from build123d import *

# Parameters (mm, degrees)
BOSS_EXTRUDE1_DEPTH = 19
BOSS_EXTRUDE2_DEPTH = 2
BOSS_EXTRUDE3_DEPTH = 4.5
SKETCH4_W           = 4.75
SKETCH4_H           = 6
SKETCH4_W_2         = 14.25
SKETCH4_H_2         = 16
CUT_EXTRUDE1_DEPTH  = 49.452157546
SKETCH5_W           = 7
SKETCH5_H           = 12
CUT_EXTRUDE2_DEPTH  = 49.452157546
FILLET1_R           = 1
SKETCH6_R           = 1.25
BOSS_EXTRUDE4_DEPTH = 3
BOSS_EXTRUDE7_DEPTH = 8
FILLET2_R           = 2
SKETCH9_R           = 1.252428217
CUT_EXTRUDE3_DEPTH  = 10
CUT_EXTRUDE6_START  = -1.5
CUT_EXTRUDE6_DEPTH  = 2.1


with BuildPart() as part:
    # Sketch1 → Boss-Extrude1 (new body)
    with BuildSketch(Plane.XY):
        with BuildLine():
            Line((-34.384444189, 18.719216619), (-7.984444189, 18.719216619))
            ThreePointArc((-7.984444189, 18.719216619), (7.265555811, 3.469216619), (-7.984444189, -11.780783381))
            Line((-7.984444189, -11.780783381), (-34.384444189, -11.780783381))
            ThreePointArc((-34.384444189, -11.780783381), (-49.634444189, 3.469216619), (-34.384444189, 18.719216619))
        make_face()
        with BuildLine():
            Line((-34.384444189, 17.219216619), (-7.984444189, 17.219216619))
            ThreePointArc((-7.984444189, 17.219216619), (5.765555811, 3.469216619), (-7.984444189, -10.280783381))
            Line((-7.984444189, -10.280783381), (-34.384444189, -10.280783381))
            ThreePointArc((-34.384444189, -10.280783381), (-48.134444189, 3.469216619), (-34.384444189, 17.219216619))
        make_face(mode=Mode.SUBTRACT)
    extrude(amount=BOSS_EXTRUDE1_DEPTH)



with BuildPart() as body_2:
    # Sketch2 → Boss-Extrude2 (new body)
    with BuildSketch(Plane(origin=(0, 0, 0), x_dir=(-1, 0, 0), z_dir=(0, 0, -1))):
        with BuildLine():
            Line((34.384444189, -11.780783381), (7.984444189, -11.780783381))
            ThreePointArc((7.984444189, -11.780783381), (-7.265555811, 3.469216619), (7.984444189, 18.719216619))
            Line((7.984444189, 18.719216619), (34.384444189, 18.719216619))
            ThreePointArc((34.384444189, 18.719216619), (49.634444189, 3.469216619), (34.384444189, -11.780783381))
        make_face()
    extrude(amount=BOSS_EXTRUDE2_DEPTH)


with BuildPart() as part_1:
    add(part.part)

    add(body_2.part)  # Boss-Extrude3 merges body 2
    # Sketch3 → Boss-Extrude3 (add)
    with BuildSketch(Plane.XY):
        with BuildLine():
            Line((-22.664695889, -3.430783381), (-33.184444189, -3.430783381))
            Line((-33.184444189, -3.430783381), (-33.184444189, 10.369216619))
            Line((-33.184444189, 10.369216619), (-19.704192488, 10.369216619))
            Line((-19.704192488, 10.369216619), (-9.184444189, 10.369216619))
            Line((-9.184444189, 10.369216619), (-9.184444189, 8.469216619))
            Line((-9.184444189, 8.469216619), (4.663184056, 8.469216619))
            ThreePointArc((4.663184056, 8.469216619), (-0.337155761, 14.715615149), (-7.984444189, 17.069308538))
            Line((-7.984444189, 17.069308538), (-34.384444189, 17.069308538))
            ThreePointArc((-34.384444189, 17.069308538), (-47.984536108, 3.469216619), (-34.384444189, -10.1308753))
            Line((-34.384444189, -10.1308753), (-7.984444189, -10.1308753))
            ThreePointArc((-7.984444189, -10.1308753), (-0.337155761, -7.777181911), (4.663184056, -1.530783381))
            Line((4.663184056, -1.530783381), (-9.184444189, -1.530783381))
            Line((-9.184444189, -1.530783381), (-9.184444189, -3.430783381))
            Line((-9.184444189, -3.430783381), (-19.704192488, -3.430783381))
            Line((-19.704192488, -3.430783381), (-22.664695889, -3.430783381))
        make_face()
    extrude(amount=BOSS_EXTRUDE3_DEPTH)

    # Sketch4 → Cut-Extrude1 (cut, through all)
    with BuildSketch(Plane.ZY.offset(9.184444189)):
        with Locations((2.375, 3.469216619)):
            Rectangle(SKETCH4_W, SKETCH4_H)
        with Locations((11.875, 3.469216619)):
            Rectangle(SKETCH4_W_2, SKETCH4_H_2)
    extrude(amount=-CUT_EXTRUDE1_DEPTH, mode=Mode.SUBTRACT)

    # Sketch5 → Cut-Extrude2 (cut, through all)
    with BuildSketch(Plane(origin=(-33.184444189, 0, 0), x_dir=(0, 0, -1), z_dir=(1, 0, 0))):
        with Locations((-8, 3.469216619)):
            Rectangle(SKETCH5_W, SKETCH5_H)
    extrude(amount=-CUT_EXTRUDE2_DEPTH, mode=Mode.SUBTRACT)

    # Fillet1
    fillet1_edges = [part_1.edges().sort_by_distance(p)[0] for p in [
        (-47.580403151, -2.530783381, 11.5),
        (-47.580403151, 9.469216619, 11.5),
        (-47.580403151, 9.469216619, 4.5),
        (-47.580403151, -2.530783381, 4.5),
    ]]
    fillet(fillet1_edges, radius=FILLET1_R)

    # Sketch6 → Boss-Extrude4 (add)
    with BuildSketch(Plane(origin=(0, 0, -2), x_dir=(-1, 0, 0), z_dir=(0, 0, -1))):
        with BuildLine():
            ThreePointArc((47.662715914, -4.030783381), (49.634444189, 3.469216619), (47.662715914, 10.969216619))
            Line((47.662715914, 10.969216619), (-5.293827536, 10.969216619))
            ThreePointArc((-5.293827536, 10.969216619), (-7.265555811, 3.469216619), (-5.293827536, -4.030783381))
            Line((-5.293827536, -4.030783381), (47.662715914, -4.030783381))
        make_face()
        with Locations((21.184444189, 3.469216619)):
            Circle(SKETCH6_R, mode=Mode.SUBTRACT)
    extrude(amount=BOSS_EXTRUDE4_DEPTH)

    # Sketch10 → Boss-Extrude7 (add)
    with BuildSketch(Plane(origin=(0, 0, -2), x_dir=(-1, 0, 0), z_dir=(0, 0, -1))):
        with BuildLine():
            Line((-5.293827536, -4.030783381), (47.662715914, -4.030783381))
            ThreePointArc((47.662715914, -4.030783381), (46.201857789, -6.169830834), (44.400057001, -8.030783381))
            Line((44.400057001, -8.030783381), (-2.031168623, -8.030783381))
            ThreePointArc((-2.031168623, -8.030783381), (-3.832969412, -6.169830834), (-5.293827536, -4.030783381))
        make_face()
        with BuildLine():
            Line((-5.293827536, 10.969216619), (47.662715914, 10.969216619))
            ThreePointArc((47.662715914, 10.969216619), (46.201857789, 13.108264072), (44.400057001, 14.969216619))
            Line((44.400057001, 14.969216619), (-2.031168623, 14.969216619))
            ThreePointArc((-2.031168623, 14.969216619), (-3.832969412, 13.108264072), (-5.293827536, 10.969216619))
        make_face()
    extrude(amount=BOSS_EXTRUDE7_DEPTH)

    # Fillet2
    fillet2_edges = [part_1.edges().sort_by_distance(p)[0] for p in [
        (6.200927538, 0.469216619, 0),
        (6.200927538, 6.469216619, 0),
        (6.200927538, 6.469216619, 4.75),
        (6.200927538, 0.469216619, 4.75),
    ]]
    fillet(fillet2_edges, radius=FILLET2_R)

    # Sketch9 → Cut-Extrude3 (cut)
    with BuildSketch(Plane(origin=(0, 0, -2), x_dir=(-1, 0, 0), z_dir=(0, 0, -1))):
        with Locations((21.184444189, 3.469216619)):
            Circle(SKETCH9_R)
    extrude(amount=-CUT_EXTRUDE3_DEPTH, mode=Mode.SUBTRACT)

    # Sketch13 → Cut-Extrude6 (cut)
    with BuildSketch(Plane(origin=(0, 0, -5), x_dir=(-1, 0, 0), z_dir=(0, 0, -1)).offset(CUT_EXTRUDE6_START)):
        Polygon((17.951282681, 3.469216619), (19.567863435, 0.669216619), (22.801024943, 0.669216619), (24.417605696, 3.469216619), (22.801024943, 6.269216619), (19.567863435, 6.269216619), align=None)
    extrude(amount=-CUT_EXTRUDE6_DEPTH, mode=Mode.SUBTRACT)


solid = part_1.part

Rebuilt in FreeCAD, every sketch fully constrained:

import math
import FreeCAD as App
import Part
import Sketcher
Q = App.Units.Quantity


def edges_at(feature, points):
    """Names of the edges that pass closest to the given points."""
    edges = feature.Shape.Edges
    near = lambda p: min(range(len(edges)), key=lambda i: edges[i].distToShape(Part.Vertex(*p))[0])
    return sorted({f"Edge{near(p) + 1}" for p in points})

doc = App.newDocument("Part")
body = doc.addObject("PartDesign::Body", "Body")

# Sketch on XY plane
sketch1 = body.newObject("Sketcher::SketchObject", "Sketch")
sketch1.AttachmentSupport = (doc.getObject("XY_Plane"), [""])
sketch1.MapMode = "FlatFace"
sketch1.addGeometry([
    Part.LineSegment(App.Vector(-8, 19, 0), App.Vector(-34, 19, 0)),  # 0
    Part.ArcOfCircle(Part.Circle(App.Vector(-34, 3, 0), App.Vector(0, 0, 1), 15), math.radians(90), math.radians(270)),  # 1
    Part.LineSegment(App.Vector(-34, -12, 0), App.Vector(-8, -12, 0)),  # 2
    Part.ArcOfCircle(Part.Circle(App.Vector(-8, 3, 0), App.Vector(0, 0, 1), 15), math.radians(-90), math.radians(90)),  # 3
    Part.LineSegment(App.Vector(-34, 17, 0), App.Vector(-8, 17, 0)),  # 4
    Part.ArcOfCircle(Part.Circle(App.Vector(-8, 3, 0), App.Vector(0, 0, 1), 14), math.radians(-90), math.radians(90)),  # 5
    Part.LineSegment(App.Vector(-8, -10, 0), App.Vector(-34, -10, 0)),  # 6
    Part.ArcOfCircle(Part.Circle(App.Vector(-34, 3, 0), App.Vector(0, 0, 1), 14), math.radians(90), math.radians(270)),  # 7
], False)
sketch1.addConstraint([
    Sketcher.Constraint("Tangent", 0, 2, 1, 1),
    Sketcher.Constraint("Tangent", 1, 2, 2, 1),
    Sketcher.Constraint("Tangent", 2, 2, 3, 1),
    Sketcher.Constraint("Tangent", 3, 2, 0, 1),
    Sketcher.Constraint("Tangent", 4, 2, 5, 2),
    Sketcher.Constraint("Tangent", 5, 1, 6, 1),
    Sketcher.Constraint("Tangent", 6, 2, 7, 2),
    Sketcher.Constraint("Tangent", 7, 1, 4, 1),
    Sketcher.Constraint("Horizontal", 0),
    Sketcher.Constraint("Horizontal", 2),
    Sketcher.Constraint("Horizontal", 4),
    Sketcher.Constraint("Horizontal", 6),
    Sketcher.Constraint("Coincident", 5, 3, 3, 3),
    Sketcher.Constraint("Vertical", 7, 3, 0, 2),
    Sketcher.Constraint("Radius", 1, 15.25),
    Sketcher.Constraint("Radius", 5, 13.75),
    Sketcher.Constraint("DistanceX", 0, 2, 0, 1, 26.4),
    Sketcher.Constraint("DistanceX", 1, 3, -1, 1, 34.384444),
    Sketcher.Constraint("DistanceY", -1, 1, 1, 3, 3.469217),
])
pad1 = body.newObject("PartDesign::Pad", "Pad")
pad1.Profile = sketch1
pad1.Length = 19
body2 = doc.addObject("PartDesign::Body", "Body001")

# Sketch on XY plane
sketch2 = body2.newObject("Sketcher::SketchObject", "Sketch001")
sketch2.AttachmentSupport = (doc.getObject("XY_Plane001"), [""])
sketch2.MapMode = "FlatFace"
sketch2.addGeometry([
    Part.LineSegment(App.Vector(-8, -12, 0), App.Vector(-34, -12, 0)),
    Part.ArcOfCircle(Part.Circle(App.Vector(-34, 3, 0), App.Vector(0, 0, 1), 15), math.radians(90), math.radians(270)),
    Part.LineSegment(App.Vector(-34, 19, 0), App.Vector(-8, 19, 0)),
    Part.ArcOfCircle(Part.Circle(App.Vector(-8, 3, 0), App.Vector(0, 0, 1), 15), math.radians(-90), math.radians(90)),
], False)
sketch2.addConstraint([
    Sketcher.Constraint("Tangent", 0, 2, 1, 2),
    Sketcher.Constraint("Tangent", 1, 1, 2, 1),
    Sketcher.Constraint("Tangent", 2, 2, 3, 2),
    Sketcher.Constraint("Tangent", 3, 1, 0, 1),
    Sketcher.Constraint("Horizontal", 0),
    Sketcher.Constraint("Horizontal", 2),
    Sketcher.Constraint("Radius", 1, 15.25),
    Sketcher.Constraint("DistanceX", 0, 2, 0, 1, 26.4),
    Sketcher.Constraint("DistanceX", 1, 3, -1, 1, 34.384444),
    Sketcher.Constraint("DistanceY", -1, 1, 1, 3, 3.469217),
])
pad2 = body2.newObject("PartDesign::Pad", "Pad001")
pad2.Profile = sketch2
pad2.Length = 2
pad2.Reversed = True
doc.recompute()

boolean = body.newObject("PartDesign::Boolean", "Boolean")
boolean.Type = "Fuse"
boolean.addObjects([body2])

# Sketch on XY plane
sketch3 = body.newObject("Sketcher::SketchObject", "Sketch002")
sketch3.AttachmentSupport = (doc.getObject("XY_Plane"), [""])
sketch3.MapMode = "FlatFace"
sketch3.addGeometry([
    Part.LineSegment(App.Vector(-33.2, -3.4, 0), App.Vector(-33.2, 10.4, 0)),  # 0
    Part.LineSegment(App.Vector(-33.2, 10.4, 0), App.Vector(-9.2, 10.4, 0)),  # 1
    Part.LineSegment(App.Vector(-9.2, 10.4, 0), App.Vector(-9.2, 8.5, 0)),  # 2
    Part.LineSegment(App.Vector(-9.2, 8.5, 0), App.Vector(4.7, 8.5, 0)),  # 3
    Part.ArcOfCircle(Part.Circle(App.Vector(-8, 3.5, 0), App.Vector(0, 0, 1), 13.6), math.radians(22), math.radians(90)),  # 4
    Part.LineSegment(App.Vector(-8, 17.1, 0), App.Vector(-34.4, 17.1, 0)),  # 5
    Part.ArcOfCircle(Part.Circle(App.Vector(-34.4, 3.5, 0), App.Vector(0, 0, 1), 13.6), math.radians(90), math.radians(270)),  # 6
    Part.LineSegment(App.Vector(-34.4, -10.1, 0), App.Vector(-8, -10.1, 0)),  # 7
    Part.ArcOfCircle(Part.Circle(App.Vector(-8, 3.5, 0), App.Vector(0, 0, 1), 13.6), math.radians(-90), math.radians(-22)),  # 8
    Part.LineSegment(App.Vector(4.7, -1.5, 0), App.Vector(-9.2, -1.5, 0)),  # 9
    Part.LineSegment(App.Vector(-9.2, -1.5, 0), App.Vector(-9.2, -3.4, 0)),  # 10
    Part.LineSegment(App.Vector(-9.2, -3.4, 0), App.Vector(-33.2, -3.4, 0)),  # 11
], False)
sketch3.addConstraint([
    Sketcher.Constraint("Coincident", 0, 2, 1, 1),
    Sketcher.Constraint("Coincident", 1, 2, 2, 1),
    Sketcher.Constraint("Coincident", 2, 2, 3, 1),
    Sketcher.Constraint("Coincident", 3, 2, 4, 1),
    Sketcher.Constraint("Tangent", 4, 2, 5, 1),
    Sketcher.Constraint("Tangent", 5, 2, 6, 1),
    Sketcher.Constraint("Tangent", 6, 2, 7, 1),
    Sketcher.Constraint("Tangent", 7, 2, 8, 1),
    Sketcher.Constraint("Coincident", 8, 2, 9, 1),
    Sketcher.Constraint("Coincident", 9, 2, 10, 1),
    Sketcher.Constraint("Coincident", 10, 2, 11, 1),
    Sketcher.Constraint("Coincident", 11, 2, 0, 1),
    Sketcher.Constraint("Vertical", 0),
    Sketcher.Constraint("Horizontal", 1),
    Sketcher.Constraint("Vertical", 2),
    Sketcher.Constraint("Horizontal", 3),
    Sketcher.Constraint("Horizontal", 5),
    Sketcher.Constraint("Horizontal", 7),
    Sketcher.Constraint("Horizontal", 9),
    Sketcher.Constraint("Vertical", 10),
    Sketcher.Constraint("Horizontal", 11),
    Sketcher.Constraint("Coincident", 8, 3, 4, 3),
    Sketcher.Constraint("Equal", 4, 6),
    Sketcher.Constraint("Vertical", 3, 2, 8, 2),
    Sketcher.Constraint("Vertical", 2, 2, 9, 2),
    Sketcher.Constraint("Equal", 2, 10),
    Sketcher.Constraint("DistanceX", 1, 1, 1, 2, 24.0),
    Sketcher.Constraint("DistanceX", 5, 2, 5, 1, 26.4),
    Sketcher.Constraint("DistanceY", 0, 1, 0, 2, 13.8),
    Sketcher.Constraint("DistanceY", 2, 2, 2, 1, 1.9),
    Sketcher.Constraint("DistanceX", 6, 3, 0, 2, 1.2),
    Sketcher.Constraint("Radius", 4, 13.600092),
    Sketcher.Constraint("DistanceY", -1, 1, 4, 2, 17.069309),
    Sketcher.Constraint("DistanceX", 4, 3, -1, 1, 7.984444),
])
pad3 = body.newObject("PartDesign::Pad", "Pad002")
pad3.Profile = sketch3
pad3.Length = 4.5

# Sketch on YZ plane
sketch4 = body.newObject("Sketcher::SketchObject", "Sketch003")
sketch4.AttachmentSupport = (doc.getObject("YZ_Plane"), [""])
sketch4.MapMode = "FlatFace"
sketch4.AttachmentOffset = App.Placement(App.Vector(0, 0, -9.184444), App.Rotation())
sketch4.addGeometry([
    Part.LineSegment(App.Vector(6.5, 0, 0), App.Vector(0.5, 0, 0)),  # 0
    Part.LineSegment(App.Vector(0.5, 0, 0), App.Vector(0.5, 4.8, 0)),  # 1
    Part.LineSegment(App.Vector(0.5, 4.8, 0), App.Vector(-4.5, 4.8, 0)),  # 2
    Part.LineSegment(App.Vector(-4.5, 4.8, 0), App.Vector(-4.5, 19, 0)),  # 3
    Part.LineSegment(App.Vector(-4.5, 19, 0), App.Vector(11.5, 19, 0)),  # 4
    Part.LineSegment(App.Vector(11.5, 19, 0), App.Vector(11.5, 4.8, 0)),  # 5
    Part.LineSegment(App.Vector(11.5, 4.8, 0), App.Vector(6.5, 4.8, 0)),  # 6
    Part.LineSegment(App.Vector(6.5, 4.8, 0), App.Vector(6.5, 0, 0)),  # 7
], False)
sketch4.addConstraint([
    Sketcher.Constraint("Coincident", 0, 2, 1, 1),
    Sketcher.Constraint("Coincident", 1, 2, 2, 1),
    Sketcher.Constraint("Coincident", 2, 2, 3, 1),
    Sketcher.Constraint("Coincident", 3, 2, 4, 1),
    Sketcher.Constraint("Coincident", 4, 2, 5, 1),
    Sketcher.Constraint("Coincident", 5, 2, 6, 1),
    Sketcher.Constraint("Coincident", 6, 2, 7, 1),
    Sketcher.Constraint("Coincident", 7, 2, 0, 1),
    Sketcher.Constraint("Horizontal", 0),
    Sketcher.Constraint("Vertical", 1),
    Sketcher.Constraint("Horizontal", 2),
    Sketcher.Constraint("Vertical", 3),
    Sketcher.Constraint("Horizontal", 4),
    Sketcher.Constraint("Vertical", 5),
    Sketcher.Constraint("Horizontal", 6),
    Sketcher.Constraint("Vertical", 7),
    Sketcher.Constraint("PointOnObject", 0, 2, -1),
    Sketcher.Constraint("Horizontal", 2, 2, 5, 2),
    Sketcher.Constraint("Equal", 2, 6),
    Sketcher.Constraint("DistanceX", 0, 2, 0, 1, 6.0),
    Sketcher.Constraint("DistanceX", 2, 2, 2, 1, 5.0),
    Sketcher.Constraint("DistanceY", -1, 1, 3, 2, 19.0),
    Sketcher.Constraint("DistanceY", 1, 1, 1, 2, 4.75),
    Sketcher.Constraint("DistanceX", -1, 1, 0, 2, 0.469217),
])
pocket1 = body.newObject("PartDesign::Pocket", "Pocket")
pocket1.Profile = sketch4
pocket1.Type = "ThroughAll"
pocket1.Reversed = True

# Sketch on YZ plane
sketch5 = body.newObject("Sketcher::SketchObject", "Sketch004")
sketch5.AttachmentSupport = (doc.getObject("YZ_Plane"), [""])
sketch5.MapMode = "FlatFace"
sketch5.AttachmentOffset = App.Placement(App.Vector(0, 0, -33.184444), App.Rotation())
sketch5.addGeometry([
    Part.LineSegment(App.Vector(9, 12, 0), App.Vector(-3, 12, 0)),
    Part.LineSegment(App.Vector(-3, 12, 0), App.Vector(-3, 4, 0)),
    Part.LineSegment(App.Vector(-3, 4, 0), App.Vector(9, 4, 0)),
    Part.LineSegment(App.Vector(9, 4, 0), App.Vector(9, 12, 0)),
], False)
sketch5.addConstraint([
    Sketcher.Constraint("Coincident", 0, 2, 1, 1),
    Sketcher.Constraint("Coincident", 1, 2, 2, 1),
    Sketcher.Constraint("Coincident", 2, 2, 3, 1),
    Sketcher.Constraint("Coincident", 3, 2, 0, 1),
    Sketcher.Constraint("Horizontal", 0),
    Sketcher.Constraint("Vertical", 1),
    Sketcher.Constraint("Horizontal", 2),
    Sketcher.Constraint("Vertical", 3),
    Sketcher.Constraint("DistanceX", 0, 2, 0, 1, 12.0),
    Sketcher.Constraint("DistanceY", 1, 2, 1, 1, 7.0),
    Sketcher.Constraint("DistanceY", -1, 1, 0, 2, 11.5),
    Sketcher.Constraint("DistanceX", 0, 2, -1, 1, 2.530783),
])
pocket2 = body.newObject("PartDesign::Pocket", "Pocket001")
pocket2.Profile = sketch5
pocket2.Type = "ThroughAll"
doc.recompute()

fillet = body.newObject("PartDesign::Fillet", "Fillet")
fillet.Base = (pocket2, edges_at(pocket2, [
    (-47.58, -2.531, 11.5),
    (-47.58, 9.469, 11.5),
    (-47.58, 9.469, 4.5),
    (-47.58, -2.531, 4.5),
]))
fillet.Radius = 1

# Sketch on XY plane
sketch6 = body.newObject("Sketcher::SketchObject", "Sketch005")
sketch6.AttachmentSupport = (doc.getObject("XY_Plane"), [""])
sketch6.MapMode = "FlatFace"
sketch6.AttachmentOffset = App.Placement(App.Vector(0, 0, -2), App.Rotation())
sketch6.addGeometry([
    Part.ArcOfCircle(Part.Circle(App.Vector(-34.4, 3.5, 0), App.Vector(0, 0, 1), 15.3), math.radians(151), math.radians(209)),  # 0
    Part.LineSegment(App.Vector(-47.7, 11, 0), App.Vector(5.3, 11, 0)),  # 1
    Part.ArcOfCircle(Part.Circle(App.Vector(-8, 3.5, 0), App.Vector(0, 0, 1), 15.3), math.radians(-29), math.radians(29)),  # 2
    Part.LineSegment(App.Vector(5.3, -4, 0), App.Vector(-47.7, -4, 0)),  # 3
    Part.Circle(App.Vector(-21.2, 3.5, 0), App.Vector(0, 0, 1), 1.2),  # 4
], False)
sketch6.addConstraint([
    Sketcher.Constraint("Coincident", 0, 1, 1, 1),
    Sketcher.Constraint("Coincident", 1, 2, 2, 2),
    Sketcher.Constraint("Coincident", 2, 1, 3, 1),
    Sketcher.Constraint("Coincident", 3, 2, 0, 2),
    Sketcher.Constraint("Horizontal", 1),
    Sketcher.Constraint("Horizontal", 3),
    Sketcher.Constraint("Equal", 0, 2),
    Sketcher.Constraint("Horizontal", 0, 3, 2, 3),
    Sketcher.Constraint("Horizontal", 2, 3, 4, 3),
    Sketcher.Constraint("Vertical", 1, 2, 2, 1),
    Sketcher.Constraint("Diameter", 4, 2.5),
    Sketcher.Constraint("Radius", 0, 15.25),
    Sketcher.Constraint("DistanceY", 2, 1, 1, 2, 15.0),
    Sketcher.Constraint("DistanceX", 0, 3, 2, 3, 26.4),
    Sketcher.Constraint("DistanceX", 4, 3, 2, 3, 13.2),
    Sketcher.Constraint("DistanceX", 0, 3, -1, 1, 34.384444),
    Sketcher.Constraint("DistanceY", -1, 1, 0, 3, 3.469217),
])
pad4 = body.newObject("PartDesign::Pad", "Pad003")
pad4.Profile = sketch6
pad4.Length = 3
pad4.Reversed = True

# Sketch on XY plane
sketch7 = body.newObject("Sketcher::SketchObject", "Sketch006")
sketch7.AttachmentSupport = (doc.getObject("XY_Plane"), [""])
sketch7.MapMode = "FlatFace"
sketch7.AttachmentOffset = App.Placement(App.Vector(0, 0, -2), App.Rotation())
sketch7.addGeometry([
    Part.LineSegment(App.Vector(-48, -4, 0), App.Vector(5, -4, 0)),  # 0
    Part.ArcOfCircle(Part.Circle(App.Vector(-8, 3, 0), App.Vector(0, 0, 1), 15), math.radians(-48.95), math.radians(-29.46)),  # 1
    Part.LineSegment(App.Vector(2, -8, 0), App.Vector(-44, -8, 0)),  # 2
    Part.ArcOfCircle(Part.Circle(App.Vector(-34, 3, 0), App.Vector(0, 0, 1), 15), math.radians(-150.54), math.radians(-131.05)),  # 3
    Part.LineSegment(App.Vector(5, 11, 0), App.Vector(-48, 11, 0)),  # 4
    Part.ArcOfCircle(Part.Circle(App.Vector(-34, 3, 0), App.Vector(0, 0, 1), 15), math.radians(131.05), math.radians(150.54)),  # 5
    Part.LineSegment(App.Vector(-44, 15, 0), App.Vector(2, 15, 0)),  # 6
    Part.ArcOfCircle(Part.Circle(App.Vector(-8, 3, 0), App.Vector(0, 0, 1), 15), math.radians(29.46), math.radians(48.95)),  # 7
], False)
sketch7.addConstraint([
    Sketcher.Constraint("Coincident", 0, 2, 1, 2),
    Sketcher.Constraint("Coincident", 1, 1, 2, 1),
    Sketcher.Constraint("Coincident", 2, 2, 3, 2),
    Sketcher.Constraint("Coincident", 3, 1, 0, 1),
    Sketcher.Constraint("Coincident", 4, 2, 5, 2),
    Sketcher.Constraint("Coincident", 5, 1, 6, 1),
    Sketcher.Constraint("Coincident", 6, 2, 7, 2),
    Sketcher.Constraint("Coincident", 7, 1, 4, 1),
    Sketcher.Constraint("Horizontal", 0),
    Sketcher.Constraint("Horizontal", 2),
    Sketcher.Constraint("Horizontal", 4),
    Sketcher.Constraint("Horizontal", 6),
    Sketcher.Constraint("Coincident", 5, 3, 3, 3),
    Sketcher.Constraint("Coincident", 7, 3, 1, 3),
    Sketcher.Constraint("Equal", 1, 3),
    Sketcher.Constraint("Equal", 3, 5),
    Sketcher.Constraint("Equal", 5, 7),
    Sketcher.Constraint("Horizontal", 1, 3, 3, 3),
    Sketcher.Constraint("Vertical", 3, 1, 4, 2),
    Sketcher.Constraint("Vertical", 2, 2, 5, 1),
    Sketcher.Constraint("Radius", 1, 15.25),
    Sketcher.Constraint("DistanceY", 1, 1, 0, 2, 4.0),
    Sketcher.Constraint("DistanceY", 3, 1, 4, 2, 15.0),
    Sketcher.Constraint("DistanceX", 3, 3, 1, 3, 26.4),
    Sketcher.Constraint("DistanceX", -1, 1, 1, 1, 2.031169),
    Sketcher.Constraint("DistanceY", -1, 1, 1, 3, 3.469217),
])
pad5 = body.newObject("PartDesign::Pad", "Pad004")
pad5.Profile = sketch7
pad5.Length = 8
pad5.Reversed = True
doc.recompute()

fillet2 = body.newObject("PartDesign::Fillet", "Fillet001")
fillet2.Base = (pad5, edges_at(pad5, [
    (6.201, 0.469, 0),
    (6.201, 6.469, 0),
    (6.201, 6.469, 4.75),
    (6.201, 0.469, 4.75),
]))
fillet2.Radius = 2

# Sketch on XY plane
sketch8 = body.newObject("Sketcher::SketchObject", "Sketch007")
sketch8.AttachmentSupport = (doc.getObject("XY_Plane"), [""])
sketch8.MapMode = "FlatFace"
sketch8.AttachmentOffset = App.Placement(App.Vector(0, 0, -2), App.Rotation())
sketch8.addGeometry(Part.Circle(App.Vector(-21.2, 3.5, 0), App.Vector(0, 0, 1), 1.3), False)
sketch8.addConstraint([
    Sketcher.Constraint("Diameter", 0, 2.504856),
    Sketcher.Constraint("DistanceX", 0, 3, -1, 1, 21.184444),
    Sketcher.Constraint("DistanceY", -1, 1, 0, 3, 3.469217),
])
pocket3 = body.newObject("PartDesign::Pocket", "Pocket002")
pocket3.Profile = sketch8
pocket3.Length = 10
pocket3.Reversed = True

# Sketch on XY plane
sketch9 = body.newObject("Sketcher::SketchObject", "Sketch008")
sketch9.AttachmentSupport = (doc.getObject("XY_Plane"), [""])
sketch9.MapMode = "FlatFace"
sketch9.AttachmentOffset = App.Placement(App.Vector(0, 0, -3.5), App.Rotation())
sketch9.addGeometry([
    Part.LineSegment(App.Vector(-18, 3.5, 0), App.Vector(-19.6, 0.7, 0)),  # 0
    Part.LineSegment(App.Vector(-19.6, 0.7, 0), App.Vector(-22.8, 0.7, 0)),  # 1
    Part.LineSegment(App.Vector(-22.8, 0.7, 0), App.Vector(-24.4, 3.5, 0)),  # 2
    Part.LineSegment(App.Vector(-24.4, 3.5, 0), App.Vector(-22.8, 6.3, 0)),  # 3
    Part.LineSegment(App.Vector(-22.8, 6.3, 0), App.Vector(-19.6, 6.3, 0)),  # 4
    Part.LineSegment(App.Vector(-19.6, 6.3, 0), App.Vector(-18, 3.5, 0)),  # 5
], False)
sketch9.addConstraint([
    Sketcher.Constraint("Coincident", 0, 2, 1, 1),
    Sketcher.Constraint("Coincident", 1, 2, 2, 1),
    Sketcher.Constraint("Coincident", 2, 2, 3, 1),
    Sketcher.Constraint("Coincident", 3, 2, 4, 1),
    Sketcher.Constraint("Coincident", 4, 2, 5, 1),
    Sketcher.Constraint("Coincident", 5, 2, 0, 1),
    Sketcher.Constraint("Horizontal", 1),
    Sketcher.Constraint("Horizontal", 4),
    Sketcher.Constraint("Parallel", 0, 3),
    Sketcher.Constraint("Parallel", 2, 5),
    Sketcher.Constraint("Horizontal", 2, 2, 5, 2),
    Sketcher.Constraint("Vertical", 1, 2, 3, 2),
    Sketcher.Constraint("Vertical", 0, 2, 4, 2),
    Sketcher.Constraint("Angle", 0, Q("-120 deg")),
    Sketcher.Constraint("DistanceY", 1, 2, 2, 2, 2.8),
    Sketcher.Constraint("DistanceX", 1, 2, 1, 1, 3.233162),
    Sketcher.Constraint("DistanceX", 0, 2, -1, 1, 19.567863),
    Sketcher.Constraint("DistanceY", -1, 1, 0, 2, 0.669217),
])
pocket4 = body.newObject("PartDesign::Pocket", "Pocket003")
pocket4.Profile = sketch9
pocket4.Length = 2.1
pocket4.Reversed = True

doc.recompute()
